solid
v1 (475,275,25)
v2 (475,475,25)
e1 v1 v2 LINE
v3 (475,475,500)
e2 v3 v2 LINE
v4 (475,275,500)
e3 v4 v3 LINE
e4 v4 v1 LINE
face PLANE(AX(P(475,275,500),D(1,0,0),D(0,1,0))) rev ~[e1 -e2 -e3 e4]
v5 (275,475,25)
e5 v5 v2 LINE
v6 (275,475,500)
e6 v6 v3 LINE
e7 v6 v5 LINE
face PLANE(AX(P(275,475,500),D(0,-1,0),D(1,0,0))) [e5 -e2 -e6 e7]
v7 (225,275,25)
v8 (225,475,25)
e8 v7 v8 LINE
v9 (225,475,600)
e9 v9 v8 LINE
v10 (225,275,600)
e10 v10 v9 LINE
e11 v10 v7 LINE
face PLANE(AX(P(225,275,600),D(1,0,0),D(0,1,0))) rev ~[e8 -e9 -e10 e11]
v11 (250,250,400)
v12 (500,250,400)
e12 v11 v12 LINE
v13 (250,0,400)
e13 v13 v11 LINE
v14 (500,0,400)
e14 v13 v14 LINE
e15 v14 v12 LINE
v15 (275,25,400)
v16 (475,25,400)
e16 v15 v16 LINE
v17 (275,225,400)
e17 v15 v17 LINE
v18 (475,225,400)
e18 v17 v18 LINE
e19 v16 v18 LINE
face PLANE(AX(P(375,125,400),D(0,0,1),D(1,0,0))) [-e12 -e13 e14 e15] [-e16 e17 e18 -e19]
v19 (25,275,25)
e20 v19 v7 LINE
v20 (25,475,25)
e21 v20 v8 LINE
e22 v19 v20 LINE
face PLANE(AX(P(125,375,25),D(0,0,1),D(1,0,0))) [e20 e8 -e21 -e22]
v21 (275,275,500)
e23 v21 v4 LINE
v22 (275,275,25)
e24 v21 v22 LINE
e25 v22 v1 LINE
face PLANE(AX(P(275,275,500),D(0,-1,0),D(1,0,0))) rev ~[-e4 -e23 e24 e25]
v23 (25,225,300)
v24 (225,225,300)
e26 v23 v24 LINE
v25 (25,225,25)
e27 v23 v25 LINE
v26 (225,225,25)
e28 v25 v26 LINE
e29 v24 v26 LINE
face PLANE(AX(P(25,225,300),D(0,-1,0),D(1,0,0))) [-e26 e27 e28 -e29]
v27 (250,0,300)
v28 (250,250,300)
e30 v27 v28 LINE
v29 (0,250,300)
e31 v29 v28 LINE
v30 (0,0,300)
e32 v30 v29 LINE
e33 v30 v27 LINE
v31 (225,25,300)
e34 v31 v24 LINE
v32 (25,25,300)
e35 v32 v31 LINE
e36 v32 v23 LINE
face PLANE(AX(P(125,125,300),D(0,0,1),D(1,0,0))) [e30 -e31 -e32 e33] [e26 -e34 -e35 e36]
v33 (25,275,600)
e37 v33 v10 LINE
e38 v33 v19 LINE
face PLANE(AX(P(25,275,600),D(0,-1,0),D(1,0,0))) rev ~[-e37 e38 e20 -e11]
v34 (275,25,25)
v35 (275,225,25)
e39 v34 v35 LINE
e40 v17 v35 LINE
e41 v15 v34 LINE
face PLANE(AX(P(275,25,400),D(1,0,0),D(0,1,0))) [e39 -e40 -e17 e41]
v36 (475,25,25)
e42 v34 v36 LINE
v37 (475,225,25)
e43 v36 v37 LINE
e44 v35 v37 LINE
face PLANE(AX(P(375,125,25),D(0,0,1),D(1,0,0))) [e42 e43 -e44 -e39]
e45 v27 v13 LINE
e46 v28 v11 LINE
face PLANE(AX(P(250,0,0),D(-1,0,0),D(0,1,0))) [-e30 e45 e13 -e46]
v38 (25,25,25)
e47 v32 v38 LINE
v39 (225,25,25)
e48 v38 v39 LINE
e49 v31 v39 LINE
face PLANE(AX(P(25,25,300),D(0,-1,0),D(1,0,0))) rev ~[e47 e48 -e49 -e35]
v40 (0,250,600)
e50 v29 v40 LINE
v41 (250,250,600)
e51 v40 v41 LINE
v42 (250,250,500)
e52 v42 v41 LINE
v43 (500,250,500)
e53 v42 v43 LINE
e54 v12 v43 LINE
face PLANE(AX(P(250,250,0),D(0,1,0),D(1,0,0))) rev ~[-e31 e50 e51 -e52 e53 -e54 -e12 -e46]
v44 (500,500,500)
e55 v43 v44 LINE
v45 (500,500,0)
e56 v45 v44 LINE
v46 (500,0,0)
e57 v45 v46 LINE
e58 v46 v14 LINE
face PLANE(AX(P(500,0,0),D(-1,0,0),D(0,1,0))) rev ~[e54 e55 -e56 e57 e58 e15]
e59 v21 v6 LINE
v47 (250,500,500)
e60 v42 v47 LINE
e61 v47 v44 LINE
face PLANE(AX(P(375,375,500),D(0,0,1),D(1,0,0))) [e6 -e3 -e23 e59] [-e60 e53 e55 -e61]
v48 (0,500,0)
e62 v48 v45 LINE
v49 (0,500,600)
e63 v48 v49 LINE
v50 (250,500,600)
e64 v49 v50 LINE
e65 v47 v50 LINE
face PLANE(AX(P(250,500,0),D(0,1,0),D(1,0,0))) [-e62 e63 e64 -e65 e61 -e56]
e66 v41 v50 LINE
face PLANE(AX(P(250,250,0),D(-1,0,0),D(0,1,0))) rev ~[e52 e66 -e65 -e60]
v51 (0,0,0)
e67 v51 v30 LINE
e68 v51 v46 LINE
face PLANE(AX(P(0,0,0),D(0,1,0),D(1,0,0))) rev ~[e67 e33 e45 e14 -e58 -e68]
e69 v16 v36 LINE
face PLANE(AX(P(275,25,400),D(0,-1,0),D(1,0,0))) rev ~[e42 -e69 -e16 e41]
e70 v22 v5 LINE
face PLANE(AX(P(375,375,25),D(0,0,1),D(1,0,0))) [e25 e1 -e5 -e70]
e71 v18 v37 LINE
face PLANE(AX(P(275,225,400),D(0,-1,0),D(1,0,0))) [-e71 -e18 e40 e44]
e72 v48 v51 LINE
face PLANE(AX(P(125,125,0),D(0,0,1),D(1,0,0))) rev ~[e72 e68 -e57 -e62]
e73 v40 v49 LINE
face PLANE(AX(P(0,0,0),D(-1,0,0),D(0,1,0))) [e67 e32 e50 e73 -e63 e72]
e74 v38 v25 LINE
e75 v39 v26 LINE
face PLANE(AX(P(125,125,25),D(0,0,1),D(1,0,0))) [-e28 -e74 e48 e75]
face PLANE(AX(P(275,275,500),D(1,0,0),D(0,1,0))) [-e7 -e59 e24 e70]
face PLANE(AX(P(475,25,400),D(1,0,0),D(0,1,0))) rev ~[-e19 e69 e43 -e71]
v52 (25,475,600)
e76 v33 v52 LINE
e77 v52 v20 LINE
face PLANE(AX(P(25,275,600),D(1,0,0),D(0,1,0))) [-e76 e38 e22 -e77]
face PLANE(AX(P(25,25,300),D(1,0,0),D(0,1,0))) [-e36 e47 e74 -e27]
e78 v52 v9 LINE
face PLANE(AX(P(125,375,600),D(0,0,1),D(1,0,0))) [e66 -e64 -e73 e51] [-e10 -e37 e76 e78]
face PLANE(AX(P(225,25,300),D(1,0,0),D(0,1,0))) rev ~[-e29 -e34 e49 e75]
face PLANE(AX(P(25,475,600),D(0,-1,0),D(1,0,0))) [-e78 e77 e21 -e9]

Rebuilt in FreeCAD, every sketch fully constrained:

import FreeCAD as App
import Part
import Sketcher


def add_polygon(sketch, points):
    """Adds a closed chain of lines whose ends are joined by coincident constraints."""
    first, n = sketch.GeometryCount, len(points)
    for a, b in zip(points, points[1:] + points[:1]):
        sketch.addGeometry(Part.LineSegment(App.Vector(*a, 0), App.Vector(*b, 0)), False)
    for i in range(n):
        sketch.addConstraint(Sketcher.Constraint("Coincident", first + i, 2, first + (i + 1) % n, 1))

doc = App.newDocument("Part")
params = doc.addObject("Spreadsheet::Sheet", "Params")
for row, (alias, value) in enumerate([
    ("sketch1_width", "250 mm"),
    ("pad1_length", "600 mm"),
    ("sketch2_width", "250 mm"),
    ("pad2_length", "500 mm"),
    ("sketch3_width", "250 mm"),
    ("pad3_length", "400 mm"),
    ("sketch4_width", "250 mm"),
    ("pad4_length", "300 mm"),
    ("sketch5_width", "200 mm"),
    ("pocket1_length", "575 mm"),
    ("sketch6_width", "200 mm"),
    ("pocket2_length", "475 mm"),
    ("sketch7_width", "200 mm"),
    ("pocket3_length", "375 mm"),
    ("sketch8_width", "200 mm"),
    ("pocket4_length", "275 mm"),
], start=1):
    params.set(f"A{row}", alias)
    params.set(f"B{row}", "=" + value)
    params.setAlias(f"B{row}", alias)

body = doc.addObject("PartDesign::Body", "Body")

# Sketch on XY plane
sketch1 = body.newObject("Sketcher::SketchObject", "Sketch")
sketch1.AttachmentSupport = (doc.getObject("XY_Plane"), [""])
sketch1.MapMode = "FlatFace"
add_polygon(sketch1, [(0, 500), (0, 250), (250, 250), (250, 500)])  # lines 0-3
sketch1.addConstraint(Sketcher.Constraint("Vertical", 0))
sketch1.addConstraint(Sketcher.Constraint("Horizontal", 1))
sketch1.addConstraint(Sketcher.Constraint("Vertical", 2))
sketch1.addConstraint(Sketcher.Constraint("Horizontal", 3))
sketch1.addConstraint(Sketcher.Constraint("PointOnObject", 0, 2, -2))
sketch1.addConstraint(Sketcher.Constraint("Equal", 3, 0))
sketch1.addConstraint(Sketcher.Constraint("DistanceX", 1, 1, 1, 2, 250.0))
sketch1.addConstraint(Sketcher.Constraint("DistanceY", -1, 1, 0, 2, 250.0))
sketch1.setExpression("Constraints[10]", "Params.sketch1_width")
pad1 = body.newObject("PartDesign::Pad", "Pad")
pad1.Profile = sketch1
pad1.setExpression("Length", "Params.pad1_length")

# Sketch on XY plane
sketch2 = body.newObject("Sketcher::SketchObject", "Sketch001")
sketch2.AttachmentSupport = (doc.getObject("XY_Plane"), [""])
sketch2.MapMode = "FlatFace"
add_polygon(sketch2, [(250, 500), (250, 250), (500, 250), (500, 500)])  # lines 0-3
sketch2.addConstraint(Sketcher.Constraint("Vertical", 0))
sketch2.addConstraint(Sketcher.Constraint("Horizontal", 1))
sketch2.addConstraint(Sketcher.Constraint("Vertical", 2))
sketch2.addConstraint(Sketcher.Constraint("Horizontal", 3))
sketch2.addConstraint(Sketcher.Constraint("Equal", 3, 0))
sketch2.addConstraint(Sketcher.Constraint("DistanceX", 1, 1, 1, 2, 250.0))
sketch2.addConstraint(Sketcher.Constraint("DistanceX", -1, 1, 0, 2, 250.0))
sketch2.addConstraint(Sketcher.Constraint("DistanceY", -1, 1, 0, 2, 250.0))
sketch2.setExpression("Constraints[9]", "Params.sketch2_width")
pad2 = body.newObject("PartDesign::Pad", "Pad001")
pad2.Profile = sketch2
pad2.setExpression("Length", "Params.pad2_length")

# Sketch on XY plane
sketch3 = body.newObject("Sketcher::SketchObject", "Sketch002")
sketch3.AttachmentSupport = (doc.getObject("XY_Plane"), [""])
sketch3.MapMode = "FlatFace"
add_polygon(sketch3, [(250, 250), (250, 0), (500, 0), (500, 250)])  # lines 0-3
sketch3.addConstraint(Sketcher.Constraint("Vertical", 0))
sketch3.addConstraint(Sketcher.Constraint("Horizontal", 1))
sketch3.addConstraint(Sketcher.Constraint("Vertical", 2))
sketch3.addConstraint(Sketcher.Constraint("Horizontal", 3))
sketch3.addConstraint(Sketcher.Constraint("PointOnObject", 0, 2, -1))
sketch3.addConstraint(Sketcher.Constraint("Equal", 3, 0))
sketch3.addConstraint(Sketcher.Constraint("DistanceX", 1, 1, 1, 2, 250.0))
sketch3.addConstraint(Sketcher.Constraint("DistanceX", -1, 1, 0, 2, 250.0))
sketch3.setExpression("Constraints[10]", "Params.sketch3_width")
pad3 = body.newObject("PartDesign::Pad", "Pad002")
pad3.Profile = sketch3
pad3.setExpression("Length", "Params.pad3_length")

# Sketch on XY plane
sketch4 = body.newObject("Sketcher::SketchObject", "Sketch003")
sketch4.AttachmentSupport = (doc.getObject("XY_Plane"), [""])
sketch4.MapMode = "FlatFace"
add_polygon(sketch4, [(0, 250), (0, 0), (250, 0), (250, 250)])  # lines 0-3
sketch4.addConstraint(Sketcher.Constraint("Vertical", 0))
sketch4.addConstraint(Sketcher.Constraint("Horizontal", 1))
sketch4.addConstraint(Sketcher.Constraint("Vertical", 2))
sketch4.addConstraint(Sketcher.Constraint("Horizontal", 3))
sketch4.addConstraint(Sketcher.Constraint("Coincident", 0, 2, -1, 1))
sketch4.addConstraint(Sketcher.Constraint("Equal", 3, 0))
sketch4.addConstraint(Sketcher.Constraint("DistanceX", 1, 1, 1, 2, 250.0))
sketch4.setExpression("Constraints[10]", "Params.sketch4_width")
pad4 = body.newObject("PartDesign::Pad", "Pad003")
pad4.Profile = sketch4
pad4.setExpression("Length", "Params.pad4_length")

# Sketch on XY plane
sketch5 = body.newObject("Sketcher::SketchObject", "Sketch004")
sketch5.AttachmentSupport = (doc.getObject("XY_Plane"), [""])
sketch5.MapMode = "FlatFace"
sketch5.AttachmentOffset = App.Placement(App.Vector(0, 0, 600), App.Rotation())
add_polygon(sketch5, [(25, 475), (25, 275), (225, 275), (225, 475)])  # lines 0-3
sketch5.addConstraint(Sketcher.Constraint("Vertical", 0))
sketch5.addConstraint(Sketcher.Constraint("Horizontal", 1))
sketch5.addConstraint(Sketcher.Constraint("Vertical", 2))
sketch5.addConstraint(Sketcher.Constraint("Horizontal", 3))
sketch5.addConstraint(Sketcher.Constraint("Equal", 3, 0))
sketch5.addConstraint(Sketcher.Constraint("DistanceX", 1, 1, 1, 2, 200.0))
sketch5.addConstraint(Sketcher.Constraint("DistanceX", -1, 1, 0, 2, 25.0))
sketch5.addConstraint(Sketcher.Constraint("DistanceY", -1, 1, 0, 2, 275.0))
sketch5.setExpression("Constraints[9]", "Params.sketch5_width")
pocket1 = body.newObject("PartDesign::Pocket", "Pocket")
pocket1.Profile = sketch5
pocket1.setExpression("Length", "Params.pocket1_length")

# Sketch on XY plane
sketch6 = body.newObject("Sketcher::SketchObject", "Sketch005")
sketch6.AttachmentSupport = (doc.getObject("XY_Plane"), [""])
sketch6.MapMode = "FlatFace"
sketch6.AttachmentOffset = App.Placement(App.Vector(0, 0, 500), App.Rotation())
add_polygon(sketch6, [(275, 475), (275, 275), (475, 275), (475, 475)])  # lines 0-3
sketch6.addConstraint(Sketcher.Constraint("Vertical", 0))
sketch6.addConstraint(Sketcher.Constraint("Horizontal", 1))
sketch6.addConstraint(Sketcher.Constraint("Vertical", 2))
sketch6.addConstraint(Sketcher.Constraint("Horizontal", 3))
sketch6.addConstraint(Sketcher.Constraint("Equal", 3, 0))
sketch6.addConstraint(Sketcher.Constraint("DistanceX", 1, 1, 1, 2, 200.0))
sketch6.addConstraint(Sketcher.Constraint("DistanceX", -1, 1, 0, 2, 275.0))
sketch6.addConstraint(Sketcher.Constraint("DistanceY", -1, 1, 0, 2, 275.0))
sketch6.setExpression("Constraints[9]", "Params.sketch6_width")
pocket2 = body.newObject("PartDesign::Pocket", "Pocket001")
pocket2.Profile = sketch6
pocket2.setExpression("Length", "Params.pocket2_length")

# Sketch on XY plane
sketch7 = body.newObject("Sketcher::SketchObject", "Sketch006")
sketch7.AttachmentSupport = (doc.getObject("XY_Plane"), [""])
sketch7.MapMode = "FlatFace"
sketch7.AttachmentOffset = App.Placement(App.Vector(0, 0, 400), App.Rotation())
add_polygon(sketch7, [(275, 225), (275, 25), (475, 25), (475, 225)])  # lines 0-3
sketch7.addConstraint(Sketcher.Constraint("Vertical", 0))
sketch7.addConstraint(Sketcher.Constraint("Horizontal", 1))
sketch7.addConstraint(Sketcher.Constraint("Vertical", 2))
sketch7.addConstraint(Sketcher.Constraint("Horizontal", 3))
sketch7.addConstraint(Sketcher.Constraint("Equal", 3, 0))
sketch7.addConstraint(Sketcher.Constraint("DistanceX", 1, 1, 1, 2, 200.0))
sketch7.addConstraint(Sketcher.Constraint("DistanceX", -1, 1, 0, 2, 275.0))
sketch7.addConstraint(Sketcher.Constraint("DistanceY", -1, 1, 0, 2, 25.0))
sketch7.setExpression("Constraints[9]", "Params.sketch7_width")
pocket3 = body.newObject("PartDesign::Pocket", "Pocket002")
pocket3.Profile = sketch7
pocket3.setExpression("Length", "Params.pocket3_length")

# Sketch on XY plane
sketch8 = body.newObject("Sketcher::SketchObject", "Sketch007")
sketch8.AttachmentSupport = (doc.getObject("XY_Plane"), [""])
sketch8.MapMode = "FlatFace"
sketch8.AttachmentOffset = App.Placement(App.Vector(0, 0, 300), App.Rotation())
add_polygon(sketch8, [(25, 225), (25, 25), (225, 25), (225, 225)])  # lines 0-3
sketch8.addConstraint(Sketcher.Constraint("Vertical", 0))
sketch8.addConstraint(Sketcher.Constraint("Horizontal", 1))
sketch8.addConstraint(Sketcher.Constraint("Vertical", 2))
sketch8.addConstraint(Sketcher.Constraint("Horizontal", 3))
sketch8.addConstraint(Sketcher.Constraint("Equal", 3, 0))
sketch8.addConstraint(Sketcher.Constraint("DistanceX", 1, 1, 1, 2, 200.0))
sketch8.addConstraint(Sketcher.Constraint("DistanceX", -1, 1, 0, 2, 25.0))
sketch8.addConstraint(Sketcher.Constraint("DistanceY", -1, 1, 0, 2, 25.0))
sketch8.setExpression("Constraints[9]", "Params.sketch8_width")
pocket4 = body.newObject("PartDesign::Pocket", "Pocket003")
pocket4.Profile = sketch8
pocket4.setExpression("Length", "Params.pocket4_length")

doc.recompute()
